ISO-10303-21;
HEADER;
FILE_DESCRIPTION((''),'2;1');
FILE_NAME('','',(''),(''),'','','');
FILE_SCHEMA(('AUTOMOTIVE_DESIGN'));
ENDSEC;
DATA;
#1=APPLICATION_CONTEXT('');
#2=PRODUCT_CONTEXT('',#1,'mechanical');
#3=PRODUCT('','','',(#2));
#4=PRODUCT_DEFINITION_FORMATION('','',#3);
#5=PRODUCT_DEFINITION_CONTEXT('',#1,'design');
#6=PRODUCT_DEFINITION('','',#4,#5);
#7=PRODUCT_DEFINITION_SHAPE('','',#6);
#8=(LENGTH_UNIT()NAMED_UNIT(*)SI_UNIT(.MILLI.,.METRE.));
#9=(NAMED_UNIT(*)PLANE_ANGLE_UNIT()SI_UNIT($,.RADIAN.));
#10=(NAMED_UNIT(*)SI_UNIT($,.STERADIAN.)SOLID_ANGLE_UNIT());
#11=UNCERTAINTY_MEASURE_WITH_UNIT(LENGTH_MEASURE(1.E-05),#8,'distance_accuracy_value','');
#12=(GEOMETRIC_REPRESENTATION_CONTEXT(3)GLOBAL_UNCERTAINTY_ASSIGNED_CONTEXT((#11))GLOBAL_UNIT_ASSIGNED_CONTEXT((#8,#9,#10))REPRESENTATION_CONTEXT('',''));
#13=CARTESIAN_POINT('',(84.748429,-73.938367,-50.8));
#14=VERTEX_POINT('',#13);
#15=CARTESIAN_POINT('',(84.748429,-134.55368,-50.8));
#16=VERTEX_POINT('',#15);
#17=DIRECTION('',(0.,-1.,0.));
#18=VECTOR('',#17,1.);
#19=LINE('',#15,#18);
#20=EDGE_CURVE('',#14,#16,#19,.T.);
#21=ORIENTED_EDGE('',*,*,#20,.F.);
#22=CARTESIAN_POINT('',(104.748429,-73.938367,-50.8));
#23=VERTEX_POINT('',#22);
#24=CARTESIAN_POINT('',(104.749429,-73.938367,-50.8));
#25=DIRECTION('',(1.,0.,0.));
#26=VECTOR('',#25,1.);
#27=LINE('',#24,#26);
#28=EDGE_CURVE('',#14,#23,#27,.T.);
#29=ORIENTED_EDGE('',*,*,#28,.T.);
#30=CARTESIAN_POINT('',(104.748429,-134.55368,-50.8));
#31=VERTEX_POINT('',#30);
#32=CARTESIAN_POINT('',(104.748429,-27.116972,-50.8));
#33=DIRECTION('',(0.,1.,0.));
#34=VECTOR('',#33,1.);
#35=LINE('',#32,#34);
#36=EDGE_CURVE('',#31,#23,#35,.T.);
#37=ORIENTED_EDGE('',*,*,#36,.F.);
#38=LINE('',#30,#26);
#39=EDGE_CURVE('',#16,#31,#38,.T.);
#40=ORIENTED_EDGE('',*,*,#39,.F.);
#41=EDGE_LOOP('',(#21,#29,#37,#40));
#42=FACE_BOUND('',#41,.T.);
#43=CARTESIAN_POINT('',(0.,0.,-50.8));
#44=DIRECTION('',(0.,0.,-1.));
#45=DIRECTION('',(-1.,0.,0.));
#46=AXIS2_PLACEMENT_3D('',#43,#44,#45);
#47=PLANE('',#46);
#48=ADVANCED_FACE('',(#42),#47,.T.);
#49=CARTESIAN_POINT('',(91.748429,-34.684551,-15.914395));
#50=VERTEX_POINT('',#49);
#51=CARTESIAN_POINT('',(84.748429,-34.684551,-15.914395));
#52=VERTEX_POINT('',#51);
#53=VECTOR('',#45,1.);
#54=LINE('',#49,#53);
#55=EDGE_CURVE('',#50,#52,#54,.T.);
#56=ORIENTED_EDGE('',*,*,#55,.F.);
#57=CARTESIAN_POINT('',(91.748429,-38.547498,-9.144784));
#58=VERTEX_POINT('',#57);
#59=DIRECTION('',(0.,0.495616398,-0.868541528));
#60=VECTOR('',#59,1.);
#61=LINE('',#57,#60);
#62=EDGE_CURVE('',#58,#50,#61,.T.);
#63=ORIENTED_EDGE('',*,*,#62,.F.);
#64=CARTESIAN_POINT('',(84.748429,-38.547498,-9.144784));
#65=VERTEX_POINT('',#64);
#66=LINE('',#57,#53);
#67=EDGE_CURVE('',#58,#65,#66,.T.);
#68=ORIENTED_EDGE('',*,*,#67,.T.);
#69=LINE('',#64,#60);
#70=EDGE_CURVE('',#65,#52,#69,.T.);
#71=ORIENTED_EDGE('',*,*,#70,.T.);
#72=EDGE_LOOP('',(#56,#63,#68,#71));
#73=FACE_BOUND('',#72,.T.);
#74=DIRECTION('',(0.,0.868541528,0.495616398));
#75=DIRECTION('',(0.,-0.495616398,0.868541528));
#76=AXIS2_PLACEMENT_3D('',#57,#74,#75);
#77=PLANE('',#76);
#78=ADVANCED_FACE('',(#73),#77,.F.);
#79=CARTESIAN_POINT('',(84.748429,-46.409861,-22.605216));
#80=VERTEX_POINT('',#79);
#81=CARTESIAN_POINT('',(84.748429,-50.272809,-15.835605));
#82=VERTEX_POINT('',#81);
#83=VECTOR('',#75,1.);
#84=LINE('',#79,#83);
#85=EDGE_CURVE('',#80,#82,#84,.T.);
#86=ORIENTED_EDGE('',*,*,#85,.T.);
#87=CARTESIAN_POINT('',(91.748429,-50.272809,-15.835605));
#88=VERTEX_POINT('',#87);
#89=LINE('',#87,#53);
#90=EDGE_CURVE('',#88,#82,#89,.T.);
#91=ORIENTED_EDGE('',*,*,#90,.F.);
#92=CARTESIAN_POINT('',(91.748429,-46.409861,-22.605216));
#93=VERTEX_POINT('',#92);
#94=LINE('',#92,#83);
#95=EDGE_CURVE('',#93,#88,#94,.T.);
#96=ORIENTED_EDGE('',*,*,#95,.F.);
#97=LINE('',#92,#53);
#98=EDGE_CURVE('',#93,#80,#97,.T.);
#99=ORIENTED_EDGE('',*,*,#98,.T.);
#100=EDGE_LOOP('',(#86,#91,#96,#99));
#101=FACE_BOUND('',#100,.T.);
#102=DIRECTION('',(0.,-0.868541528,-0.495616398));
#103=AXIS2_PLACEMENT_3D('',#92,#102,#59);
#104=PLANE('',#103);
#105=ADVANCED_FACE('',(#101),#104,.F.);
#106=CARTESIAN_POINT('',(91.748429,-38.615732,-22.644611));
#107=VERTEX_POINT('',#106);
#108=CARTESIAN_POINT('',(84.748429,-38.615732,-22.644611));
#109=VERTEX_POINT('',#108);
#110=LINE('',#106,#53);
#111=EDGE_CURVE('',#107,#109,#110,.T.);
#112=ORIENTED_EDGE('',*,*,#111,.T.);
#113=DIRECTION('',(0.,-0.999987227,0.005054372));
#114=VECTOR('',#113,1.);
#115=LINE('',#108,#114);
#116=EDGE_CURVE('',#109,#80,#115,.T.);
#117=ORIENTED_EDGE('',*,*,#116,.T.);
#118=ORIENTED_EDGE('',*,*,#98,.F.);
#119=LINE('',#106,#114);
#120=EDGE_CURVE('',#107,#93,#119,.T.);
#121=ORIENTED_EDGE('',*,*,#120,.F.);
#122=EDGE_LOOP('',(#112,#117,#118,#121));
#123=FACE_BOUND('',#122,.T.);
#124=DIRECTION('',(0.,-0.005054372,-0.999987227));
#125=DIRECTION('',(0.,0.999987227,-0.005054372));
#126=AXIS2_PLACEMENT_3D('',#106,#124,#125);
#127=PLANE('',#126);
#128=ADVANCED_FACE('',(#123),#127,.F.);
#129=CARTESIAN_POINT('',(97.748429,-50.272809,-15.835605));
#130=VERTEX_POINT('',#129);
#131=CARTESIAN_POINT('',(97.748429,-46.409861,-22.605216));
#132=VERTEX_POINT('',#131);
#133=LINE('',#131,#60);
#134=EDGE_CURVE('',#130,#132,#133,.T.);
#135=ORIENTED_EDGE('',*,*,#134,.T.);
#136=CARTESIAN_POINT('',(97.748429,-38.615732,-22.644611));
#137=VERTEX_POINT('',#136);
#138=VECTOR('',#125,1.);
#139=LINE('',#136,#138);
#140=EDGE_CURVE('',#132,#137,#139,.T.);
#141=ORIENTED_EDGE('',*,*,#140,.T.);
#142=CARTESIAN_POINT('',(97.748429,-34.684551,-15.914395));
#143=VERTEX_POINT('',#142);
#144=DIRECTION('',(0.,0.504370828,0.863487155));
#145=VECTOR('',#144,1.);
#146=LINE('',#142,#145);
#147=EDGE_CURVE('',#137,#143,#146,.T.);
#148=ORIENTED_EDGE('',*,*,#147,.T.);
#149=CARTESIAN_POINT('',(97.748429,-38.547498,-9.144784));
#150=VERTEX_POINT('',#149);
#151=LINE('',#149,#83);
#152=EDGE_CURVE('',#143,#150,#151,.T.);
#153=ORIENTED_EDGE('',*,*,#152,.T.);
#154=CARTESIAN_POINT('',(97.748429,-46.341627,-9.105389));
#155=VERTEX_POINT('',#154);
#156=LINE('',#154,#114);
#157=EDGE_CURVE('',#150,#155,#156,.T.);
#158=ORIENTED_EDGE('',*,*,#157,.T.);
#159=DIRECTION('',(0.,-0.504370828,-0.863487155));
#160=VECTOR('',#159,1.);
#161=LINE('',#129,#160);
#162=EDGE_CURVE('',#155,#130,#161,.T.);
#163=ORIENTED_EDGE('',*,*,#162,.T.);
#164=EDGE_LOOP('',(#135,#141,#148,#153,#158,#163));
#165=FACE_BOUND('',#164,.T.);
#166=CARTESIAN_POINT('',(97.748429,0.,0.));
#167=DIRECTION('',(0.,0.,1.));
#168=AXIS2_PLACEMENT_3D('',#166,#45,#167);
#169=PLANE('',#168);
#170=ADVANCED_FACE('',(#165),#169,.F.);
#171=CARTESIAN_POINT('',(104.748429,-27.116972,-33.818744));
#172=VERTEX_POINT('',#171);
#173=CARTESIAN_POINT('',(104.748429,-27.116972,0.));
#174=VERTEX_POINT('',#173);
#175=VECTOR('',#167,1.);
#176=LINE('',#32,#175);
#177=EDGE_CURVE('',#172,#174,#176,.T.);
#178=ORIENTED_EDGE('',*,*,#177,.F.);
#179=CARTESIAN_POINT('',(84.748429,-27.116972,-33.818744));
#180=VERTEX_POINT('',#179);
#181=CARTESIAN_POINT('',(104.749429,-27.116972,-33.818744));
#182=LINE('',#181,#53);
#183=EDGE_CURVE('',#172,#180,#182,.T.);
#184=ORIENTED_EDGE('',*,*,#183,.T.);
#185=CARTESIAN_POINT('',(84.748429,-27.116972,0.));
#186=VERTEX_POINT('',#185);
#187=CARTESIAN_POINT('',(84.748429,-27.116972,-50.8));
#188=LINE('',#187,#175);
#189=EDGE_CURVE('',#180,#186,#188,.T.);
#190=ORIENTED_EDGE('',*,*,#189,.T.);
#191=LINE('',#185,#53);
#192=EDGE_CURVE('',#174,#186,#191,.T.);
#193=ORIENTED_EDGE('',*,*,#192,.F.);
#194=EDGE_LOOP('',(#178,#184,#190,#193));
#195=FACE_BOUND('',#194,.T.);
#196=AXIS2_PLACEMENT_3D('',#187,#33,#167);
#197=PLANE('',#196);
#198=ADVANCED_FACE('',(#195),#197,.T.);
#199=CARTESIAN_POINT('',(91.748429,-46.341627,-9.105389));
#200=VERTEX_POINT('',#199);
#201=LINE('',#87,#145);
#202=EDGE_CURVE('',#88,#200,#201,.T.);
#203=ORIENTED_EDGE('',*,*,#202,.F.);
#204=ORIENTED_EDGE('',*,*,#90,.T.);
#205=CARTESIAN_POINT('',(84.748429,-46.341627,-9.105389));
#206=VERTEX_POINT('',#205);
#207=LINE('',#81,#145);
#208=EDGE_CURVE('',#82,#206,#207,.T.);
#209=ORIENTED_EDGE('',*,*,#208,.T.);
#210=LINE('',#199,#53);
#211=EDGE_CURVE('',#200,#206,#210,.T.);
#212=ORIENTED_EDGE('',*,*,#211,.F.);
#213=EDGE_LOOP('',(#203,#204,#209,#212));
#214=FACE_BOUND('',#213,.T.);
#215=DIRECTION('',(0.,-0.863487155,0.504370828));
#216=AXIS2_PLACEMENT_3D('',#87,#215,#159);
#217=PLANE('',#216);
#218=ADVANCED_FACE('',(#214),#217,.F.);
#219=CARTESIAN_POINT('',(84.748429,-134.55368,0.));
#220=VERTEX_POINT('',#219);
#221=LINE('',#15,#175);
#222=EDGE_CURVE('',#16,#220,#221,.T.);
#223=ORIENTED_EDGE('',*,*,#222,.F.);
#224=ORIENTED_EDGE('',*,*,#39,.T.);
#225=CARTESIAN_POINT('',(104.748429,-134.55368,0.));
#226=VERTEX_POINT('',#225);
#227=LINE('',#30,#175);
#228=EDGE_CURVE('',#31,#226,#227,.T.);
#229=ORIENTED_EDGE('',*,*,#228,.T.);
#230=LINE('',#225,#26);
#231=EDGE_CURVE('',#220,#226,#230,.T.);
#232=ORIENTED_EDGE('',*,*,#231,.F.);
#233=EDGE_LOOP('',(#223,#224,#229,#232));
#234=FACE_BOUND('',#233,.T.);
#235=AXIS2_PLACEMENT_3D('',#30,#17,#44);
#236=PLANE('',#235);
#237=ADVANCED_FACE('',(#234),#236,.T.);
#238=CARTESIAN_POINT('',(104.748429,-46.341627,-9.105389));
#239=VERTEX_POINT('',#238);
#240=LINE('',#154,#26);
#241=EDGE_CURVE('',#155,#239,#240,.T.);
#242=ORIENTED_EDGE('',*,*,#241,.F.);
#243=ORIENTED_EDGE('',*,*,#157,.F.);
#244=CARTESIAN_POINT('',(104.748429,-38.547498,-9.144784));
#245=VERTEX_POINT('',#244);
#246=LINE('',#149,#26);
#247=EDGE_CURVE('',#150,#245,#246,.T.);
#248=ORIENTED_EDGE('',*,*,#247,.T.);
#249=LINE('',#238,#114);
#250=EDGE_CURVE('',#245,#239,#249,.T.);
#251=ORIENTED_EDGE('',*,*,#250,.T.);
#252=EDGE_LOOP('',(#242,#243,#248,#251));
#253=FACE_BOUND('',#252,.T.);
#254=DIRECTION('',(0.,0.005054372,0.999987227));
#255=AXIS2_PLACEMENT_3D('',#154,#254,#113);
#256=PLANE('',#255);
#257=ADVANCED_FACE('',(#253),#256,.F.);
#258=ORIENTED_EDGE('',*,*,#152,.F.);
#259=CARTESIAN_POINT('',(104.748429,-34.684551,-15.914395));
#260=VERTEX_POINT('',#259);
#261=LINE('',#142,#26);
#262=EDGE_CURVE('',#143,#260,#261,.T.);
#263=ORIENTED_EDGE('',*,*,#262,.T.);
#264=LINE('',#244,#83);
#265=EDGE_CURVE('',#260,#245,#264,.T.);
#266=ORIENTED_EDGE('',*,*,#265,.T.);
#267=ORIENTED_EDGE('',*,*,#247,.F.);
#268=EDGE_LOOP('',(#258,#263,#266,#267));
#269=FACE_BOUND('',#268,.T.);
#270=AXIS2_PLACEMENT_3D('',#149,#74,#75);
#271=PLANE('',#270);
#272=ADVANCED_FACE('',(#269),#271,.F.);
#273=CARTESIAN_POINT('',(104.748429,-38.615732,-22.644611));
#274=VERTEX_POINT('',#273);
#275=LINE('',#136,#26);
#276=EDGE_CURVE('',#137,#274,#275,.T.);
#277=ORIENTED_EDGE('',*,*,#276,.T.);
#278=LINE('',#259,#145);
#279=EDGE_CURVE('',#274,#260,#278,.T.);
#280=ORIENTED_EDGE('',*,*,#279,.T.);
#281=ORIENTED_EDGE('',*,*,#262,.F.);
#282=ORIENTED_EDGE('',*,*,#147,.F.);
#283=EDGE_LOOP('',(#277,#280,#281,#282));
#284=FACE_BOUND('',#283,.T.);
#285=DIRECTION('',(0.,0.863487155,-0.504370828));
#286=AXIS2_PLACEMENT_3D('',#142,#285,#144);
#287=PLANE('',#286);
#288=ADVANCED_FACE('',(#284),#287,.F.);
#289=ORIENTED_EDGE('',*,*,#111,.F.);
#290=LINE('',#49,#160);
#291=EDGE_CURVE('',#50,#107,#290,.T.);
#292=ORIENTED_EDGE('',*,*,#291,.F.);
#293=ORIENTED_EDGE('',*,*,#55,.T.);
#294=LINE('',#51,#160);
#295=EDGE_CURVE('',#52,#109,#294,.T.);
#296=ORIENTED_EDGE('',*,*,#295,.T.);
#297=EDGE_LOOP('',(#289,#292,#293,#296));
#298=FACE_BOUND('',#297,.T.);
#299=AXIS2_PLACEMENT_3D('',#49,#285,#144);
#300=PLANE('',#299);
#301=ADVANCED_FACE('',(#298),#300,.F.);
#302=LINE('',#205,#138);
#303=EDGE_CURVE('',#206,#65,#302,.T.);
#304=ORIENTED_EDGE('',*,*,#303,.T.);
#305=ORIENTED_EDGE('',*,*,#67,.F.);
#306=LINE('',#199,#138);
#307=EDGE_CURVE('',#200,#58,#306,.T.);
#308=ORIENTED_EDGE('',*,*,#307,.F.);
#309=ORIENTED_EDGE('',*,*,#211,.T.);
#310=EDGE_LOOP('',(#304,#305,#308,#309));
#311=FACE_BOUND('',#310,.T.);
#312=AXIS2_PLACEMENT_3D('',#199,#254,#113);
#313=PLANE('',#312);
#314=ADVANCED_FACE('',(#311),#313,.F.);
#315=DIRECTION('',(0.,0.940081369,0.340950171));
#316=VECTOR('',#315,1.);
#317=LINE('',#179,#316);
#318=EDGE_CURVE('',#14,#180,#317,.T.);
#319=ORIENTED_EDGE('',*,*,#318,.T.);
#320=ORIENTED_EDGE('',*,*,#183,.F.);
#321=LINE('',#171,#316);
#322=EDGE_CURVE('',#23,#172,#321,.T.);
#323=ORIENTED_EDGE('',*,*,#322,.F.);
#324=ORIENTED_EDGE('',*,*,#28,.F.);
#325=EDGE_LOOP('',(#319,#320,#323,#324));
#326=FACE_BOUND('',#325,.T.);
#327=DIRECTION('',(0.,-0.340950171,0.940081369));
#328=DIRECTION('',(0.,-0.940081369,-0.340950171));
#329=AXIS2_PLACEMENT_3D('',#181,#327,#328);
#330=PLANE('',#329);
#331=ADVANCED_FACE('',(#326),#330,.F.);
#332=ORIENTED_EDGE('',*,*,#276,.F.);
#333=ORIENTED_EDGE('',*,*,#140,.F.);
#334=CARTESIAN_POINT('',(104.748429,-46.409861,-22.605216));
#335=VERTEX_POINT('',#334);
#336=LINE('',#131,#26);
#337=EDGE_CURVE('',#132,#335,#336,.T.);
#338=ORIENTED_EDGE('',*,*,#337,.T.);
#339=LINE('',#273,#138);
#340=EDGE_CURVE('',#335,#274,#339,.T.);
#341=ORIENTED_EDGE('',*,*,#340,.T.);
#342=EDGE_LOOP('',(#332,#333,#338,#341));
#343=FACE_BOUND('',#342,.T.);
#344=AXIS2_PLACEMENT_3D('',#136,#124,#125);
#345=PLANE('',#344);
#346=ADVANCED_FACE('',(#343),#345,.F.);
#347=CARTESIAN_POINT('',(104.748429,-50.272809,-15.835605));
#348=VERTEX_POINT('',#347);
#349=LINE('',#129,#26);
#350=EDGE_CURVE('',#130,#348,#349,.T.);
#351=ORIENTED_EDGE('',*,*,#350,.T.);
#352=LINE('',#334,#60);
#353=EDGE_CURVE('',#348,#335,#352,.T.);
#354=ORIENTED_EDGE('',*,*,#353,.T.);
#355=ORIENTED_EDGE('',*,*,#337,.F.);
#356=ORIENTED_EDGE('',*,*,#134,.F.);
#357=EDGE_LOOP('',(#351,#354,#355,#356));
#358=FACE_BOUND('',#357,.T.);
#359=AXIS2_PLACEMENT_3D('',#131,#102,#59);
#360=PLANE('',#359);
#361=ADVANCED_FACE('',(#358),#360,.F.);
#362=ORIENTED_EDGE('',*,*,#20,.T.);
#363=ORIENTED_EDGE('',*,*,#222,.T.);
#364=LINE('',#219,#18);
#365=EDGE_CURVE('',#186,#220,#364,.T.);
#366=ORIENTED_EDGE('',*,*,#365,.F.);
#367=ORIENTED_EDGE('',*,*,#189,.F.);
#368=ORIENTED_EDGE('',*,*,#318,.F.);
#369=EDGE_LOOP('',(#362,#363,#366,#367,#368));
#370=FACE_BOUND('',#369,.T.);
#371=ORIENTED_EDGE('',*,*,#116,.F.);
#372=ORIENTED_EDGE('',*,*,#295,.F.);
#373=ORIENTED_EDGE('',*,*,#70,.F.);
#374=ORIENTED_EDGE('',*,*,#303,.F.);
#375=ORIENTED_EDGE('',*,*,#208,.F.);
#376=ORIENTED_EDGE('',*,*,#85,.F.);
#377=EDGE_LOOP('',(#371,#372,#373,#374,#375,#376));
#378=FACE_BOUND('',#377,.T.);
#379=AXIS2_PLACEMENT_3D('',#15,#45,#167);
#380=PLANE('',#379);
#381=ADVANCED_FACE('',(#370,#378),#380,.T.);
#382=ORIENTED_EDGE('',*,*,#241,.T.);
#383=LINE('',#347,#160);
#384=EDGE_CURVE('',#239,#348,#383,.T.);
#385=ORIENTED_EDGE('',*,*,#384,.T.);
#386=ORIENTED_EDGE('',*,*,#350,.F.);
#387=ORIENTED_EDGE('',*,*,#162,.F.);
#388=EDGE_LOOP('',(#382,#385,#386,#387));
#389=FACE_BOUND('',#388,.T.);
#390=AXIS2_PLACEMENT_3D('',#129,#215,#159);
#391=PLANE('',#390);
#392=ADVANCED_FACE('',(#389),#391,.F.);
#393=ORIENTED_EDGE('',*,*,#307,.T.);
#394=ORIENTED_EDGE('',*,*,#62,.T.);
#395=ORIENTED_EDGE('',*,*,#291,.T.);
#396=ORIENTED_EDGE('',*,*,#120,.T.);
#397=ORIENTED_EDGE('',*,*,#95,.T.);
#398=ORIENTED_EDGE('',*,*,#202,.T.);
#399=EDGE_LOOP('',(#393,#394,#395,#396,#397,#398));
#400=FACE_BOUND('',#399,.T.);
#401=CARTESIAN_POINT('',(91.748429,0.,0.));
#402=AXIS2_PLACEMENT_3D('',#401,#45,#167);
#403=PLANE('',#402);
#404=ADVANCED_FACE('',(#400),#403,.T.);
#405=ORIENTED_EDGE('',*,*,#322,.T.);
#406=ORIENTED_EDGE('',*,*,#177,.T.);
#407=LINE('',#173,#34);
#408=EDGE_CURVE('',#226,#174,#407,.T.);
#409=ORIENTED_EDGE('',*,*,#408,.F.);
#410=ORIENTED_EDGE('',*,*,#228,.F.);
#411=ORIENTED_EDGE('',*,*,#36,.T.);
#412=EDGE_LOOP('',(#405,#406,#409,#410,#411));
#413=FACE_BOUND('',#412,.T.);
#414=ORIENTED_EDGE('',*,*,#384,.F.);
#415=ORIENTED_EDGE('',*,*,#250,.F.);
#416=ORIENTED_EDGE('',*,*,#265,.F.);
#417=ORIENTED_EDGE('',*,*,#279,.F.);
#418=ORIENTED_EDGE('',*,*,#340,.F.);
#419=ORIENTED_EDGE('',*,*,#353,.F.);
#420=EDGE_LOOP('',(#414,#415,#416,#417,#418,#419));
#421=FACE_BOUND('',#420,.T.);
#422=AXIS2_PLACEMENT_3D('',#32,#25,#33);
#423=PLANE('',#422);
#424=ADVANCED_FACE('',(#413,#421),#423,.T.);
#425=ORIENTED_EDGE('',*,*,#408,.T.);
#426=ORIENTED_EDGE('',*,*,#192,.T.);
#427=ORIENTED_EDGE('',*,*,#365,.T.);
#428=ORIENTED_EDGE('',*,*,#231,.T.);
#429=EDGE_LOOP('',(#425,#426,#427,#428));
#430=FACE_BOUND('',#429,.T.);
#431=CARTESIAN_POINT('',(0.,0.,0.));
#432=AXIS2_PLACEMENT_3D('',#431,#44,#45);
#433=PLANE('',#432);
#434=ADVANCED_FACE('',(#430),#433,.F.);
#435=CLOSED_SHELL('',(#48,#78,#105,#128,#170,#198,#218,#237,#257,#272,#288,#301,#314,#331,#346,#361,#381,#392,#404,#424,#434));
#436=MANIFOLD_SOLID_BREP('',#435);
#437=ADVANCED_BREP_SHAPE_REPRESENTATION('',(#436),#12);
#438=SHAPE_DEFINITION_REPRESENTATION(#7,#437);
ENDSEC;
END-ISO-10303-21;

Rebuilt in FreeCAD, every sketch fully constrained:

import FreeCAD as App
import Part
import Sketcher


def add_polygon(sketch, points):
    """Adds a closed chain of lines whose ends are joined by coincident constraints."""
    first, n = sketch.GeometryCount, len(points)
    for a, b in zip(points, points[1:] + points[:1]):
        sketch.addGeometry(Part.LineSegment(App.Vector(*a, 0), App.Vector(*b, 0)), False)
    for i in range(n):
        sketch.addConstraint(Sketcher.Constraint("Coincident", first + i, 2, first + (i + 1) % n, 1))

doc = App.newDocument("Part")
params = doc.addObject("Spreadsheet::Sheet", "Params")
for row, (alias, value) in enumerate([
    ("sketch1_width", "20 mm"),
    ("pad1_length", "50.8 mm"),
    ("pocket1_length", "7 mm"),
    ("pocket2_length", "7 mm"),
], start=1):
    params.set(f"A{row}", alias)
    params.set(f"B{row}", "=" + value)
    params.setAlias(f"B{row}", alias)

body = doc.addObject("PartDesign::Body", "Body")

sketch1 = body.newObject("Sketcher::SketchObject", "Sketch")
sketch1.AttachmentSupport = (doc.getObject("XY_Plane"), [""])
sketch1.MapMode = "FlatFace"
add_polygon(sketch1, [(85, -27), (85, -135), (105, -135), (105, -27)])
sketch1.addConstraint([
    Sketcher.Constraint("Vertical", 0),
    Sketcher.Constraint("Horizontal", 1),
    Sketcher.Constraint("Vertical", 2),
    Sketcher.Constraint("Horizontal", 3),
    Sketcher.Constraint("DistanceX", 1, 1, 1, 2, 20.0),
    Sketcher.Constraint("DistanceY", 0, 2, 0, 1, 107.436707),
    Sketcher.Constraint("DistanceX", -1, 1, 0, 2, 84.748429),
    Sketcher.Constraint("DistanceY", 0, 2, -1, 1, 134.55368),
])
sketch1.setExpression("Constraints[8]", "Params.sketch1_width")
pad1 = body.newObject("PartDesign::Pad", "Pad")
pad1.Profile = sketch1
pad1.setExpression("Length", "Params.pad1_length")
pad1.Reversed = True

sketch2 = body.newObject("Sketcher::SketchObject", "Sketch001")
sketch2.AttachmentSupport = (doc.getObject("YZ_Plane"), [""])
sketch2.MapMode = "FlatFace"
sketch2.AttachmentOffset = App.Placement(App.Vector(0, 0, 84.748429), App.Rotation())
add_polygon(sketch2, [(-39, -9), (-35, -16), (-39, -23), (-46, -23), (-50, -16), (-46, -9)])
sketch2.addConstraint([
    Sketcher.Constraint("Parallel", 0, 3),
    Sketcher.Constraint("Parallel", 1, 4),
    Sketcher.Constraint("Parallel", 2, 5),
    Sketcher.Constraint("Equal", 0, 1),
    Sketcher.Constraint("Equal", 1, 2),
    Sketcher.Constraint("Equal", 2, 3),
    Sketcher.Constraint("DistanceX", 5, 2, -1, 1, 38.547498),
    Sketcher.Constraint("Distance", 0, 7.794229),
    Sketcher.Constraint("DistanceX", 0, 2, -1, 1, 34.684551),
    Sketcher.Constraint("DistanceY", 1, 2, -1, 1, 22.644611),
    Sketcher.Constraint("DistanceX", 2, 2, -1, 1, 46.409861),
    Sketcher.Constraint("DistanceY", 4, 2, -1, 1, 9.105389),
])
pocket1 = body.newObject("PartDesign::Pocket", "Pocket")
pocket1.Profile = sketch2
pocket1.setExpression("Length", "Params.pocket1_length")
pocket1.Reversed = True

sketch3 = body.newObject("Sketcher::SketchObject", "Sketch002")
sketch3.AttachmentSupport = (doc.getObject("YZ_Plane"), [""])
sketch3.MapMode = "FlatFace"
sketch3.AttachmentOffset = App.Placement(App.Vector(0, 0, 104.748429), App.Rotation())
add_polygon(sketch3, [(-46, -9), (-50, -16), (-46, -23), (-39, -23), (-35, -16), (-39, -9)])
sketch3.addConstraint([
    Sketcher.Constraint("Parallel", 0, 3),
    Sketcher.Constraint("Parallel", 1, 4),
    Sketcher.Constraint("Parallel", 2, 5),
    Sketcher.Constraint("Equal", 0, 1),
    Sketcher.Constraint("Equal", 1, 2),
    Sketcher.Constraint("Equal", 2, 3),
    Sketcher.Constraint("DistanceX", 4, 2, -1, 1, 38.547498),
    Sketcher.Constraint("Distance", 0, 7.794229),
    Sketcher.Constraint("DistanceX", 0, 2, -1, 1, 50.272809),
    Sketcher.Constraint("DistanceX", 1, 2, -1, 1, 46.409861),
    Sketcher.Constraint("DistanceY", 2, 2, -1, 1, 22.644611),
    Sketcher.Constraint("DistanceY", 5, 2, -1, 1, 9.105389),
])
pocket2 = body.newObject("PartDesign::Pocket", "Pocket001")
pocket2.Profile = sketch3
pocket2.setExpression("Length", "Params.pocket2_length")

sketch4 = body.newObject("Sketcher::SketchObject", "Sketch003")
sketch4.AttachmentSupport = (doc.getObject("YZ_Plane"), [""])
sketch4.MapMode = "FlatFace"
sketch4.AttachmentOffset = App.Placement(App.Vector(0, 0, 84.748429), App.Rotation())
add_polygon(sketch4, [(-74, -51), (-27, -34), (-27, -51)])
sketch4.addConstraint([
    Sketcher.Constraint("DistanceY", 2, 2, -1, 1, 50.8),
    Sketcher.Constraint("DistanceY", 1, 2, -1, 1, 50.97),
    Sketcher.Constraint("DistanceX", 1, 2, -1, 1, 27.115638),
    Sketcher.Constraint("DistanceX", 2, 2, 1, 2, 46.822729),
    Sketcher.Constraint("Distance", 0, 49.805683),
    Sketcher.Constraint("Distance", 1, 17.151256),
])
pocket3 = body.newObject("PartDesign::Pocket", "Pocket002")
pocket3.Profile = sketch4
pocket3.Type = "UpToFirst"
pocket3.Reversed = True

doc.recompute()
